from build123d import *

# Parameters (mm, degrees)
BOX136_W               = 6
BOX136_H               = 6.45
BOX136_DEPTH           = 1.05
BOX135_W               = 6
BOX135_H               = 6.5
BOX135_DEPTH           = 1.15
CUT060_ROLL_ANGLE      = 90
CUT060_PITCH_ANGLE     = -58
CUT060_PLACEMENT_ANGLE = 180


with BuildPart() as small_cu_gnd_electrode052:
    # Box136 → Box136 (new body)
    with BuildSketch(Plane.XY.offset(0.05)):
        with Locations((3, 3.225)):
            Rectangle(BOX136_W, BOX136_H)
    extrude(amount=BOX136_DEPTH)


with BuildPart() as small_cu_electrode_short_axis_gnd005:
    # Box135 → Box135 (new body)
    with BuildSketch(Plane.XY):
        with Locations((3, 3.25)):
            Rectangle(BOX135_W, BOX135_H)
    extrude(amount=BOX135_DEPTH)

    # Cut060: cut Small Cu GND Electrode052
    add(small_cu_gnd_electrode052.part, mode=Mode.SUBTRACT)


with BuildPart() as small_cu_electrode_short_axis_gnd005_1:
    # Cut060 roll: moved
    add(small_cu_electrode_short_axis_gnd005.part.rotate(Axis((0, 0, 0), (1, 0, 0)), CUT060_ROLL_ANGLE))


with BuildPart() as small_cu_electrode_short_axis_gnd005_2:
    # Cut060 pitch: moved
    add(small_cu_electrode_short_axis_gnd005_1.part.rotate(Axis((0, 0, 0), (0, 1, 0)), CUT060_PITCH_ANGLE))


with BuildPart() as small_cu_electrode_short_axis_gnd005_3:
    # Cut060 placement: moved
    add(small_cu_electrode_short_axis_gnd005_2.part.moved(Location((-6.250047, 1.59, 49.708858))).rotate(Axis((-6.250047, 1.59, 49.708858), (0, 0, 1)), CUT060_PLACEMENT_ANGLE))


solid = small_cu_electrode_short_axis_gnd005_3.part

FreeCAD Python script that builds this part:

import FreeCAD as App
import Part
import Sketcher

V = App.Vector

doc = App.newDocument("Part")
body = doc.addObject("PartDesign::Body", "Body")

sketch1 = body.newObject("Sketcher::SketchObject", "Sketch")
sketch1.AttachmentSupport = (doc.getObject("XY_Plane"), [""])
sketch1.MapMode = "FlatFace"
sketch1.AttachmentOffset = App.Placement(V(0, 0, 0.05), App.Rotation())
sketch1.addGeometry(Part.LineSegment(V(0, 6, 0), V(0, 0, 0)), False)
sketch1.addGeometry(Part.LineSegment(V(0, 0, 0), V(6, 0, 0)), False)
sketch1.addGeometry(Part.LineSegment(V(6, 0, 0), V(6, 6, 0)), False)
sketch1.addGeometry(Part.LineSegment(V(6, 6, 0), V(0, 6, 0)), False)
sketch1.addConstraint(Sketcher.Constraint("Coincident", 0, 2, 1, 1))
sketch1.addConstraint(Sketcher.Constraint("Coincident", 1, 2, 2, 1))
sketch1.addConstraint(Sketcher.Constraint("Coincident", 2, 2, 3, 1))
sketch1.addConstraint(Sketcher.Constraint("Coincident", 3, 2, 0, 1))
sketch1.addConstraint(Sketcher.Constraint("Vertical", 0))
sketch1.addConstraint(Sketcher.Constraint("Horizontal", 1))
sketch1.addConstraint(Sketcher.Constraint("Vertical", 2))
sketch1.addConstraint(Sketcher.Constraint("Horizontal", 3))
sketch1.addConstraint(Sketcher.Constraint("Coincident", 0, 2, -1, 1))
sketch1.addConstraint(Sketcher.Constraint("DistanceX", 1, 1, 1, 2, 6.0))
sketch1.addConstraint(Sketcher.Constraint("DistanceY", 0, 2, 0, 1, 6.45))
pad1 = body.newObject("PartDesign::Pad", "Pad")
pad1.Profile = sketch1
pad1.Length = 1.05
body2 = doc.addObject("PartDesign::Body", "Body001")

sketch2 = body2.newObject("Sketcher::SketchObject", "Sketch001")
sketch2.AttachmentSupport = (doc.getObject("XY_Plane001"), [""])
sketch2.MapMode = "FlatFace"
sketch2.addGeometry(Part.LineSegment(V(0, 6, 0), V(0, 0, 0)), False)
sketch2.addGeometry(Part.LineSegment(V(0, 0, 0), V(6, 0, 0)), False)
sketch2.addGeometry(Part.LineSegment(V(6, 0, 0), V(6, 6, 0)), False)
sketch2.addGeometry(Part.LineSegment(V(6, 6, 0), V(0, 6, 0)), False)
sketch2.addConstraint(Sketcher.Constraint("Coincident", 0, 2, 1, 1))
sketch2.addConstraint(Sketcher.Constraint("Coincident", 1, 2, 2, 1))
sketch2.addConstraint(Sketcher.Constraint("Coincident", 2, 2, 3, 1))
sketch2.addConstraint(Sketcher.Constraint("Coincident", 3, 2, 0, 1))
sketch2.addConstraint(Sketcher.Constraint("Vertical", 0))
sketch2.addConstraint(Sketcher.Constraint("Horizontal", 1))
sketch2.addConstraint(Sketcher.Constraint("Vertical", 2))
sketch2.addConstraint(Sketcher.Constraint("Horizontal", 3))
sketch2.addConstraint(Sketcher.Constraint("Coincident", 0, 2, -1, 1))
sketch2.addConstraint(Sketcher.Constraint("DistanceX", 1, 1, 1, 2, 6.0))
sketch2.addConstraint(Sketcher.Constraint("DistanceY", 0, 2, 0, 1, 6.5))
pad2 = body2.newObject("PartDesign::Pad", "Pad001")
pad2.Profile = sketch2
pad2.Length = 1.15
doc.recompute()

boolean = body2.newObject("PartDesign::Boolean", "Boolean")
boolean.Type = "Cut"
boolean.addObjects([body])
body3 = doc.addObject("PartDesign::Body", "Body002")
doc.recompute()

body2.Placement = App.Placement(V(0, 0, 0), App.Rotation(V(1, 0, 0), 90))
boolean2 = body3.newObject("PartDesign::Boolean", "Boolean001")
boolean2.Type = "Fuse"
boolean2.addObjects([body2])
body4 = doc.addObject("PartDesign::Body", "Body003")
doc.recompute()

body3.Placement = App.Placement(V(0, 0, 0), App.Rotation(V(0, 1, 0), 302))
boolean3 = body4.newObject("PartDesign::Boolean", "Boolean002")
boolean3.Type = "Fuse"
boolean3.addObjects([body3])
body5 = doc.addObject("PartDesign::Body", "Body004")
doc.recompute()

body4.Placement = App.Placement(V(-6.250047, 1.59, 49.708858), App.Rotation(V(0, 0, 1), 180))
boolean4 = body5.newObject("PartDesign::Boolean", "Boolean003")
boolean4.Type = "Fuse"
boolean4.addObjects([body4])

doc.recompute()
